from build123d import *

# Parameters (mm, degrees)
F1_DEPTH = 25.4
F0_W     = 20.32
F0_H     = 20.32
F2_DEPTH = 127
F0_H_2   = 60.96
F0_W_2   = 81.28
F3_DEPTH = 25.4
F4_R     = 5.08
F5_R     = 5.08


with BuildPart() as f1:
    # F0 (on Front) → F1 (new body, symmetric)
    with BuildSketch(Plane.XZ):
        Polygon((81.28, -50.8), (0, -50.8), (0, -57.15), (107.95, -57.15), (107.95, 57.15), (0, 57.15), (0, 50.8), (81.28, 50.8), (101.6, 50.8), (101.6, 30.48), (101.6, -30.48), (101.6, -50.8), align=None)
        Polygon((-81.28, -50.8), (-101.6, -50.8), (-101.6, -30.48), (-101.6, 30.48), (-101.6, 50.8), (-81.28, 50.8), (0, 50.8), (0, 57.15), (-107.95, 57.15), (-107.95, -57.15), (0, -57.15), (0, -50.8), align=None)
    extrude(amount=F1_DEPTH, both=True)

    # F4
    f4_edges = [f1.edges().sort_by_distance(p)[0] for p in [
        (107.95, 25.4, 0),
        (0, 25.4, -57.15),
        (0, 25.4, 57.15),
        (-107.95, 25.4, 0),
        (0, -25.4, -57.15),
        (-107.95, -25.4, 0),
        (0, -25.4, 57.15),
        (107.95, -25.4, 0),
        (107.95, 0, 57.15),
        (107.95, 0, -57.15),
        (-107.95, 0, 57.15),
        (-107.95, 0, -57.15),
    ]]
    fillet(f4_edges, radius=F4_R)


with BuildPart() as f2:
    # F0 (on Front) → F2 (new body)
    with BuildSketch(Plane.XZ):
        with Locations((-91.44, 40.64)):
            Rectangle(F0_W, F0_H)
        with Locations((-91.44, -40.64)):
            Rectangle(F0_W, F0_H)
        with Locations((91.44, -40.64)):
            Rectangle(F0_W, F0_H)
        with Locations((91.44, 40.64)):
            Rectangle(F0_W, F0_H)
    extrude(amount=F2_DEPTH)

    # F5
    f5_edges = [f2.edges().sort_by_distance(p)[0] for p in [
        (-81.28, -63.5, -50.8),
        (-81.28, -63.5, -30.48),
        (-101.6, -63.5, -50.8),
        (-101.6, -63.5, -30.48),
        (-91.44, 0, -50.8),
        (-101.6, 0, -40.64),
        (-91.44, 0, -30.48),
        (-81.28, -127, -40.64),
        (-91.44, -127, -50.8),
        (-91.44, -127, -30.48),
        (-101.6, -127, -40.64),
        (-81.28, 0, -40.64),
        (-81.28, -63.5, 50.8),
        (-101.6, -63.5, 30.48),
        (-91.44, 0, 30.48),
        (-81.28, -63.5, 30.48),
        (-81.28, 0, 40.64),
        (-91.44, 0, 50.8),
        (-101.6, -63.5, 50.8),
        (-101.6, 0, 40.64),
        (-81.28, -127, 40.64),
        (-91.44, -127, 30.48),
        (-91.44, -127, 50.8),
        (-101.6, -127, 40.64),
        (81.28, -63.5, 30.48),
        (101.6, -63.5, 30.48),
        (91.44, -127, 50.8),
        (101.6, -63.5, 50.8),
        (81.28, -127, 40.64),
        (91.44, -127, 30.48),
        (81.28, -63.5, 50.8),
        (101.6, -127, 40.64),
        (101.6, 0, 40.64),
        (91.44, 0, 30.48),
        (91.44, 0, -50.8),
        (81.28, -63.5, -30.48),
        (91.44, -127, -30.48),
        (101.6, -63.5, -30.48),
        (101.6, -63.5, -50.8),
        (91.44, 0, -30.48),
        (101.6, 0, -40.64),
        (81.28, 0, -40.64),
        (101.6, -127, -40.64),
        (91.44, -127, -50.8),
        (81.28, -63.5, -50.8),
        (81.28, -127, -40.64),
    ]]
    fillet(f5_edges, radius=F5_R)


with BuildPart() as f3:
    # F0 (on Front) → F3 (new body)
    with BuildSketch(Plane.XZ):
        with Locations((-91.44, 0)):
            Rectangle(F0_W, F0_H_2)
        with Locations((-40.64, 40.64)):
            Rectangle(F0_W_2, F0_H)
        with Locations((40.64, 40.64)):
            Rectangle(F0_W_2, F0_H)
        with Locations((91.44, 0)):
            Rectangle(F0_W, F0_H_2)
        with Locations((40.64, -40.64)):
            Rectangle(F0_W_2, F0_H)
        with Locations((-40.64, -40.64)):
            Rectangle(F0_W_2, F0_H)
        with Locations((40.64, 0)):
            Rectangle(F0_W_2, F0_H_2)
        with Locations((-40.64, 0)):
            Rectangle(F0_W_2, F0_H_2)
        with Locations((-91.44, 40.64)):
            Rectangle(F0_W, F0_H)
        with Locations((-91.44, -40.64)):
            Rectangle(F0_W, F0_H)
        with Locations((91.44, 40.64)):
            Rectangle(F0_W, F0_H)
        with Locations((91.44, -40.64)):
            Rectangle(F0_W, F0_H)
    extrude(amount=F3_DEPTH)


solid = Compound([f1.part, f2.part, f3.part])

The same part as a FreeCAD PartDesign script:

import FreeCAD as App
import Part
import Sketcher

V = App.Vector
Q = App.Units.Quantity


def edges_at(feature, points):
    """Names of the edges that pass closest to the given points."""
    edges = feature.Shape.Edges
    near = lambda p: min(range(len(edges)), key=lambda i: edges[i].distToShape(Part.Vertex(*p))[0])
    return sorted({f"Edge{near(p) + 1}" for p in points})


def add_polygon(sketch, points):
    """Adds a closed chain of lines whose ends are joined by coincident constraints."""
    first, n = sketch.GeometryCount, len(points)
    for a, b in zip(points, points[1:] + points[:1]):
        sketch.addGeometry(Part.LineSegment(App.Vector(*a, 0), App.Vector(*b, 0)), False)
    for i in range(n):
        sketch.addConstraint(Sketcher.Constraint("Coincident", first + i, 2, first + (i + 1) % n, 1))

doc = App.newDocument("Part")
body = doc.addObject("PartDesign::Body", "Body")

# Sketch on XZ plane
sketch1 = body.newObject("Sketcher::SketchObject", "Sketch")
sketch1.AttachmentSupport = (doc.getObject("XZ_Plane"), [""])
sketch1.MapMode = "FlatFace"
add_polygon(sketch1, [(108, -57), (108, 57), (-108, 57), (-108, -57)])  # lines 0-3
add_polygon(sketch1, [(102, 51), (102, -51), (-102, -51), (-102, 51)])  # lines 4-7
sketch1.addConstraint(Sketcher.Constraint("Vertical", 0))
sketch1.addConstraint(Sketcher.Constraint("Horizontal", 1))
sketch1.addConstraint(Sketcher.Constraint("Vertical", 2))
sketch1.addConstraint(Sketcher.Constraint("Horizontal", 3))
sketch1.addConstraint(Sketcher.Constraint("Vertical", 4))
sketch1.addConstraint(Sketcher.Constraint("Horizontal", 5))
sketch1.addConstraint(Sketcher.Constraint("Vertical", 6))
sketch1.addConstraint(Sketcher.Constraint("Horizontal", 7))
sketch1.addConstraint(Sketcher.Constraint("Symmetric", 0, 2, 2, 2, -1, 1))
sketch1.addConstraint(Sketcher.Constraint("Symmetric", 4, 2, 6, 2, -1, 1))
sketch1.addConstraint(Sketcher.Constraint("DistanceX", 5, 2, 5, 1, Q("8 in")))
sketch1.addConstraint(Sketcher.Constraint("DistanceY", 4, 2, 4, 1, Q("4 in")))
sketch1.addConstraint(Sketcher.Constraint("DistanceX", 1, 2, 1, 1, Q("8.5 in")))
sketch1.addConstraint(Sketcher.Constraint("DistanceY", 0, 1, 0, 2, Q("4.5 in")))
pad1 = body.newObject("PartDesign::Pad", "Pad")
pad1.Profile = sketch1
pad1.Length = Q("2 in")
pad1.Midplane = True
doc.recompute()

fillet = body.newObject("PartDesign::Fillet", "Fillet")
fillet.Base = (pad1, edges_at(pad1, [
    (107.95, 25.4, 0),
    (0, 25.4, -57.15),
    (0, 25.4, 57.15),
    (-107.95, 25.4, 0),
    (0, -25.4, -57.15),
    (-107.95, -25.4, 0),
    (0, -25.4, 57.15),
    (107.95, -25.4, 0),
    (107.95, 0, 57.15),
    (107.95, 0, -57.15),
    (-107.95, 0, 57.15),
    (-107.95, 0, -57.15),
]))
fillet.Radius = Q("0.2 in")
body2 = doc.addObject("PartDesign::Body", "Body001")
body2.AllowCompound = True

# Sketch on XZ plane
sketch2 = body2.newObject("Sketcher::SketchObject", "Sketch001")
sketch2.AttachmentSupport = (doc.getObject("XZ_Plane001"), [""])
sketch2.MapMode = "FlatFace"
add_polygon(sketch2, [(-102, 51), (-102, 30), (-81, 30), (-81, 51)])  # lines 0-3
add_polygon(sketch2, [(-102, -30), (-102, -51), (-81, -51), (-81, -30)])  # lines 4-7
add_polygon(sketch2, [(81, -30), (81, -51), (102, -51), (102, -30)])  # lines 8-11
add_polygon(sketch2, [(81, 51), (81, 30), (102, 30), (102, 51)])  # lines 12-15
sketch2.addConstraint(Sketcher.Constraint("Vertical", 0))
sketch2.addConstraint(Sketcher.Constraint("Horizontal", 1))
sketch2.addConstraint(Sketcher.Constraint("Vertical", 2))
sketch2.addConstraint(Sketcher.Constraint("Horizontal", 3))
sketch2.addConstraint(Sketcher.Constraint("Vertical", 4))
sketch2.addConstraint(Sketcher.Constraint("Horizontal", 5))
sketch2.addConstraint(Sketcher.Constraint("Vertical", 6))
sketch2.addConstraint(Sketcher.Constraint("Horizontal", 7))
sketch2.addConstraint(Sketcher.Constraint("Vertical", 8))
sketch2.addConstraint(Sketcher.Constraint("Horizontal", 9))
sketch2.addConstraint(Sketcher.Constraint("Vertical", 10))
sketch2.addConstraint(Sketcher.Constraint("Horizontal", 11))
sketch2.addConstraint(Sketcher.Constraint("Vertical", 12))
sketch2.addConstraint(Sketcher.Constraint("Horizontal", 13))
sketch2.addConstraint(Sketcher.Constraint("Vertical", 14))
sketch2.addConstraint(Sketcher.Constraint("Horizontal", 15))
sketch2.addConstraint(Sketcher.Constraint("Symmetric", 2, 2, 8, 2, -1, 1))
sketch2.addConstraint(Sketcher.Constraint("Symmetric", 0, 2, 10, 2, -1, 1))
sketch2.addConstraint(Sketcher.Constraint("Symmetric", 6, 2, 12, 2, -1, 1))
sketch2.addConstraint(Sketcher.Constraint("Symmetric", 4, 2, 14, 2, -1, 1))
sketch2.addConstraint(Sketcher.Constraint("Symmetric", 5, 2, 8, 2, -2))
sketch2.addConstraint(Sketcher.Constraint("Symmetric", 7, 2, 10, 2, -2))
sketch2.addConstraint(Sketcher.Constraint("Equal", 15, 0))
sketch2.addConstraint(Sketcher.Constraint("DistanceX", 1, 1, 1, 2, Q("0.8 in")))
sketch2.addConstraint(Sketcher.Constraint("DistanceX", 0, 2, -1, 1, Q("4 in")))
sketch2.addConstraint(Sketcher.Constraint("DistanceY", -1, 1, 2, 2, Q("2 in")))
pad2 = body2.newObject("PartDesign::Pad", "Pad001")
pad2.Profile = sketch2
pad2.Length = Q("5 in")
doc.recompute()

fillet2 = body2.newObject("PartDesign::Fillet", "Fillet001")
fillet2.Base = (pad2, edges_at(pad2, [
    (-81.28, -63.5, -50.8),
    (-81.28, -63.5, -30.48),
    (-101.6, -63.5, -50.8),
    (-101.6, -63.5, -30.48),
    (-91.44, 0, -50.8),
    (-101.6, 0, -40.64),
    (-91.44, 0, -30.48),
    (-81.28, -127, -40.64),
    (-91.44, -127, -50.8),
    (-91.44, -127, -30.48),
    (-101.6, -127, -40.64),
    (-81.28, 0, -40.64),
    (-81.28, -63.5, 50.8),
    (-101.6, -63.5, 30.48),
    (-91.44, 0, 30.48),
    (-81.28, -63.5, 30.48),
    (-81.28, 0, 40.64),
    (-91.44, 0, 50.8),
    (-101.6, -63.5, 50.8),
    (-101.6, 0, 40.64),
    (-81.28, -127, 40.64),
    (-91.44, -127, 30.48),
    (-91.44, -127, 50.8),
    (-101.6, -127, 40.64),
    (81.28, -63.5, 30.48),
    (101.6, -63.5, 30.48),
    (91.44, -127, 50.8),
    (101.6, -63.5, 50.8),
    (81.28, -127, 40.64),
    (91.44, -127, 30.48),
    (81.28, -63.5, 50.8),
    (101.6, -127, 40.64),
    (101.6, 0, 40.64),
    (91.44, 0, 30.48),
    (91.44, 0, -50.8),
    (81.28, -63.5, -30.48),
    (91.44, -127, -30.48),
    (101.6, -63.5, -30.48),
    (101.6, -63.5, -50.8),
    (91.44, 0, -30.48),
    (101.6, 0, -40.64),
    (81.28, 0, -40.64),
    (101.6, -127, -40.64),
    (91.44, -127, -50.8),
    (81.28, -63.5, -50.8),
    (81.28, -127, -40.64),
]))
fillet2.Radius = Q("0.2 in")
body3 = doc.addObject("PartDesign::Body", "Body002")

# Sketch on XZ plane
sketch3 = body3.newObject("Sketcher::SketchObject", "Sketch002")
sketch3.AttachmentSupport = (doc.getObject("XZ_Plane002"), [""])
sketch3.MapMode = "FlatFace"
add_polygon(sketch3, [(102, 51), (-102, 51), (-102, -51), (102, -51)])  # lines 0-3
sketch3.addConstraint(Sketcher.Constraint("Horizontal", 0))
sketch3.addConstraint(Sketcher.Constraint("Vertical", 1))
sketch3.addConstraint(Sketcher.Constraint("Horizontal", 2))
sketch3.addConstraint(Sketcher.Constraint("Vertical", 3))
sketch3.addConstraint(Sketcher.Constraint("Symmetric", 0, 2, 2, 2, -1, 1))
sketch3.addConstraint(Sketcher.Constraint("DistanceX", 0, 2, 0, 1, Q("8 in")))
sketch3.addConstraint(Sketcher.Constraint("DistanceY", 1, 2, 1, 1, Q("4 in")))
pad3 = body3.newObject("PartDesign::Pad", "Pad002")
pad3.Profile = sketch3
pad3.Length = Q("1 in")

doc.recompute()
